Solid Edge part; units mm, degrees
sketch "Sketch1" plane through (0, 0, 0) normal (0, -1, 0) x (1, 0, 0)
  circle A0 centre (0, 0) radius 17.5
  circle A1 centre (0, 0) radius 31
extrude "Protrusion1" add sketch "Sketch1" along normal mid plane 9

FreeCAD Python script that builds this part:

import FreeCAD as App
import Part
import Sketcher
Q = App.Units.Quantity

doc = App.newDocument("Part")
body = doc.addObject("PartDesign::Body", "Body")

sketch1 = body.newObject("Sketcher::SketchObject", "Sketch")
sketch1.AttachmentSupport = (doc.getObject("XZ_Plane"), [""])
sketch1.MapMode = "FlatFace"
sketch1.addGeometry(Part.Circle(App.Vector(0, 0, 0), App.Vector(0, 0, 1), 31), False)
sketch1.addGeometry(Part.Circle(App.Vector(0, 0, 0), App.Vector(0, 0, 1), 18), False)
sketch1.addConstraint(Sketcher.Constraint("Coincident", 0, 3, -1, 1))
sketch1.addConstraint(Sketcher.Constraint("Coincident", 1, 3, -1, 1))
sketch1.addConstraint(Sketcher.Constraint("Diameter", 0, Q("62 mm")))
sketch1.addConstraint(Sketcher.Constraint("Diameter", 1, Q("35 mm")))
pad1 = body.newObject("PartDesign::Pad", "Pad")
pad1.Profile = sketch1
pad1.Length = 9
pad1.Midplane = True

doc.recompute()
